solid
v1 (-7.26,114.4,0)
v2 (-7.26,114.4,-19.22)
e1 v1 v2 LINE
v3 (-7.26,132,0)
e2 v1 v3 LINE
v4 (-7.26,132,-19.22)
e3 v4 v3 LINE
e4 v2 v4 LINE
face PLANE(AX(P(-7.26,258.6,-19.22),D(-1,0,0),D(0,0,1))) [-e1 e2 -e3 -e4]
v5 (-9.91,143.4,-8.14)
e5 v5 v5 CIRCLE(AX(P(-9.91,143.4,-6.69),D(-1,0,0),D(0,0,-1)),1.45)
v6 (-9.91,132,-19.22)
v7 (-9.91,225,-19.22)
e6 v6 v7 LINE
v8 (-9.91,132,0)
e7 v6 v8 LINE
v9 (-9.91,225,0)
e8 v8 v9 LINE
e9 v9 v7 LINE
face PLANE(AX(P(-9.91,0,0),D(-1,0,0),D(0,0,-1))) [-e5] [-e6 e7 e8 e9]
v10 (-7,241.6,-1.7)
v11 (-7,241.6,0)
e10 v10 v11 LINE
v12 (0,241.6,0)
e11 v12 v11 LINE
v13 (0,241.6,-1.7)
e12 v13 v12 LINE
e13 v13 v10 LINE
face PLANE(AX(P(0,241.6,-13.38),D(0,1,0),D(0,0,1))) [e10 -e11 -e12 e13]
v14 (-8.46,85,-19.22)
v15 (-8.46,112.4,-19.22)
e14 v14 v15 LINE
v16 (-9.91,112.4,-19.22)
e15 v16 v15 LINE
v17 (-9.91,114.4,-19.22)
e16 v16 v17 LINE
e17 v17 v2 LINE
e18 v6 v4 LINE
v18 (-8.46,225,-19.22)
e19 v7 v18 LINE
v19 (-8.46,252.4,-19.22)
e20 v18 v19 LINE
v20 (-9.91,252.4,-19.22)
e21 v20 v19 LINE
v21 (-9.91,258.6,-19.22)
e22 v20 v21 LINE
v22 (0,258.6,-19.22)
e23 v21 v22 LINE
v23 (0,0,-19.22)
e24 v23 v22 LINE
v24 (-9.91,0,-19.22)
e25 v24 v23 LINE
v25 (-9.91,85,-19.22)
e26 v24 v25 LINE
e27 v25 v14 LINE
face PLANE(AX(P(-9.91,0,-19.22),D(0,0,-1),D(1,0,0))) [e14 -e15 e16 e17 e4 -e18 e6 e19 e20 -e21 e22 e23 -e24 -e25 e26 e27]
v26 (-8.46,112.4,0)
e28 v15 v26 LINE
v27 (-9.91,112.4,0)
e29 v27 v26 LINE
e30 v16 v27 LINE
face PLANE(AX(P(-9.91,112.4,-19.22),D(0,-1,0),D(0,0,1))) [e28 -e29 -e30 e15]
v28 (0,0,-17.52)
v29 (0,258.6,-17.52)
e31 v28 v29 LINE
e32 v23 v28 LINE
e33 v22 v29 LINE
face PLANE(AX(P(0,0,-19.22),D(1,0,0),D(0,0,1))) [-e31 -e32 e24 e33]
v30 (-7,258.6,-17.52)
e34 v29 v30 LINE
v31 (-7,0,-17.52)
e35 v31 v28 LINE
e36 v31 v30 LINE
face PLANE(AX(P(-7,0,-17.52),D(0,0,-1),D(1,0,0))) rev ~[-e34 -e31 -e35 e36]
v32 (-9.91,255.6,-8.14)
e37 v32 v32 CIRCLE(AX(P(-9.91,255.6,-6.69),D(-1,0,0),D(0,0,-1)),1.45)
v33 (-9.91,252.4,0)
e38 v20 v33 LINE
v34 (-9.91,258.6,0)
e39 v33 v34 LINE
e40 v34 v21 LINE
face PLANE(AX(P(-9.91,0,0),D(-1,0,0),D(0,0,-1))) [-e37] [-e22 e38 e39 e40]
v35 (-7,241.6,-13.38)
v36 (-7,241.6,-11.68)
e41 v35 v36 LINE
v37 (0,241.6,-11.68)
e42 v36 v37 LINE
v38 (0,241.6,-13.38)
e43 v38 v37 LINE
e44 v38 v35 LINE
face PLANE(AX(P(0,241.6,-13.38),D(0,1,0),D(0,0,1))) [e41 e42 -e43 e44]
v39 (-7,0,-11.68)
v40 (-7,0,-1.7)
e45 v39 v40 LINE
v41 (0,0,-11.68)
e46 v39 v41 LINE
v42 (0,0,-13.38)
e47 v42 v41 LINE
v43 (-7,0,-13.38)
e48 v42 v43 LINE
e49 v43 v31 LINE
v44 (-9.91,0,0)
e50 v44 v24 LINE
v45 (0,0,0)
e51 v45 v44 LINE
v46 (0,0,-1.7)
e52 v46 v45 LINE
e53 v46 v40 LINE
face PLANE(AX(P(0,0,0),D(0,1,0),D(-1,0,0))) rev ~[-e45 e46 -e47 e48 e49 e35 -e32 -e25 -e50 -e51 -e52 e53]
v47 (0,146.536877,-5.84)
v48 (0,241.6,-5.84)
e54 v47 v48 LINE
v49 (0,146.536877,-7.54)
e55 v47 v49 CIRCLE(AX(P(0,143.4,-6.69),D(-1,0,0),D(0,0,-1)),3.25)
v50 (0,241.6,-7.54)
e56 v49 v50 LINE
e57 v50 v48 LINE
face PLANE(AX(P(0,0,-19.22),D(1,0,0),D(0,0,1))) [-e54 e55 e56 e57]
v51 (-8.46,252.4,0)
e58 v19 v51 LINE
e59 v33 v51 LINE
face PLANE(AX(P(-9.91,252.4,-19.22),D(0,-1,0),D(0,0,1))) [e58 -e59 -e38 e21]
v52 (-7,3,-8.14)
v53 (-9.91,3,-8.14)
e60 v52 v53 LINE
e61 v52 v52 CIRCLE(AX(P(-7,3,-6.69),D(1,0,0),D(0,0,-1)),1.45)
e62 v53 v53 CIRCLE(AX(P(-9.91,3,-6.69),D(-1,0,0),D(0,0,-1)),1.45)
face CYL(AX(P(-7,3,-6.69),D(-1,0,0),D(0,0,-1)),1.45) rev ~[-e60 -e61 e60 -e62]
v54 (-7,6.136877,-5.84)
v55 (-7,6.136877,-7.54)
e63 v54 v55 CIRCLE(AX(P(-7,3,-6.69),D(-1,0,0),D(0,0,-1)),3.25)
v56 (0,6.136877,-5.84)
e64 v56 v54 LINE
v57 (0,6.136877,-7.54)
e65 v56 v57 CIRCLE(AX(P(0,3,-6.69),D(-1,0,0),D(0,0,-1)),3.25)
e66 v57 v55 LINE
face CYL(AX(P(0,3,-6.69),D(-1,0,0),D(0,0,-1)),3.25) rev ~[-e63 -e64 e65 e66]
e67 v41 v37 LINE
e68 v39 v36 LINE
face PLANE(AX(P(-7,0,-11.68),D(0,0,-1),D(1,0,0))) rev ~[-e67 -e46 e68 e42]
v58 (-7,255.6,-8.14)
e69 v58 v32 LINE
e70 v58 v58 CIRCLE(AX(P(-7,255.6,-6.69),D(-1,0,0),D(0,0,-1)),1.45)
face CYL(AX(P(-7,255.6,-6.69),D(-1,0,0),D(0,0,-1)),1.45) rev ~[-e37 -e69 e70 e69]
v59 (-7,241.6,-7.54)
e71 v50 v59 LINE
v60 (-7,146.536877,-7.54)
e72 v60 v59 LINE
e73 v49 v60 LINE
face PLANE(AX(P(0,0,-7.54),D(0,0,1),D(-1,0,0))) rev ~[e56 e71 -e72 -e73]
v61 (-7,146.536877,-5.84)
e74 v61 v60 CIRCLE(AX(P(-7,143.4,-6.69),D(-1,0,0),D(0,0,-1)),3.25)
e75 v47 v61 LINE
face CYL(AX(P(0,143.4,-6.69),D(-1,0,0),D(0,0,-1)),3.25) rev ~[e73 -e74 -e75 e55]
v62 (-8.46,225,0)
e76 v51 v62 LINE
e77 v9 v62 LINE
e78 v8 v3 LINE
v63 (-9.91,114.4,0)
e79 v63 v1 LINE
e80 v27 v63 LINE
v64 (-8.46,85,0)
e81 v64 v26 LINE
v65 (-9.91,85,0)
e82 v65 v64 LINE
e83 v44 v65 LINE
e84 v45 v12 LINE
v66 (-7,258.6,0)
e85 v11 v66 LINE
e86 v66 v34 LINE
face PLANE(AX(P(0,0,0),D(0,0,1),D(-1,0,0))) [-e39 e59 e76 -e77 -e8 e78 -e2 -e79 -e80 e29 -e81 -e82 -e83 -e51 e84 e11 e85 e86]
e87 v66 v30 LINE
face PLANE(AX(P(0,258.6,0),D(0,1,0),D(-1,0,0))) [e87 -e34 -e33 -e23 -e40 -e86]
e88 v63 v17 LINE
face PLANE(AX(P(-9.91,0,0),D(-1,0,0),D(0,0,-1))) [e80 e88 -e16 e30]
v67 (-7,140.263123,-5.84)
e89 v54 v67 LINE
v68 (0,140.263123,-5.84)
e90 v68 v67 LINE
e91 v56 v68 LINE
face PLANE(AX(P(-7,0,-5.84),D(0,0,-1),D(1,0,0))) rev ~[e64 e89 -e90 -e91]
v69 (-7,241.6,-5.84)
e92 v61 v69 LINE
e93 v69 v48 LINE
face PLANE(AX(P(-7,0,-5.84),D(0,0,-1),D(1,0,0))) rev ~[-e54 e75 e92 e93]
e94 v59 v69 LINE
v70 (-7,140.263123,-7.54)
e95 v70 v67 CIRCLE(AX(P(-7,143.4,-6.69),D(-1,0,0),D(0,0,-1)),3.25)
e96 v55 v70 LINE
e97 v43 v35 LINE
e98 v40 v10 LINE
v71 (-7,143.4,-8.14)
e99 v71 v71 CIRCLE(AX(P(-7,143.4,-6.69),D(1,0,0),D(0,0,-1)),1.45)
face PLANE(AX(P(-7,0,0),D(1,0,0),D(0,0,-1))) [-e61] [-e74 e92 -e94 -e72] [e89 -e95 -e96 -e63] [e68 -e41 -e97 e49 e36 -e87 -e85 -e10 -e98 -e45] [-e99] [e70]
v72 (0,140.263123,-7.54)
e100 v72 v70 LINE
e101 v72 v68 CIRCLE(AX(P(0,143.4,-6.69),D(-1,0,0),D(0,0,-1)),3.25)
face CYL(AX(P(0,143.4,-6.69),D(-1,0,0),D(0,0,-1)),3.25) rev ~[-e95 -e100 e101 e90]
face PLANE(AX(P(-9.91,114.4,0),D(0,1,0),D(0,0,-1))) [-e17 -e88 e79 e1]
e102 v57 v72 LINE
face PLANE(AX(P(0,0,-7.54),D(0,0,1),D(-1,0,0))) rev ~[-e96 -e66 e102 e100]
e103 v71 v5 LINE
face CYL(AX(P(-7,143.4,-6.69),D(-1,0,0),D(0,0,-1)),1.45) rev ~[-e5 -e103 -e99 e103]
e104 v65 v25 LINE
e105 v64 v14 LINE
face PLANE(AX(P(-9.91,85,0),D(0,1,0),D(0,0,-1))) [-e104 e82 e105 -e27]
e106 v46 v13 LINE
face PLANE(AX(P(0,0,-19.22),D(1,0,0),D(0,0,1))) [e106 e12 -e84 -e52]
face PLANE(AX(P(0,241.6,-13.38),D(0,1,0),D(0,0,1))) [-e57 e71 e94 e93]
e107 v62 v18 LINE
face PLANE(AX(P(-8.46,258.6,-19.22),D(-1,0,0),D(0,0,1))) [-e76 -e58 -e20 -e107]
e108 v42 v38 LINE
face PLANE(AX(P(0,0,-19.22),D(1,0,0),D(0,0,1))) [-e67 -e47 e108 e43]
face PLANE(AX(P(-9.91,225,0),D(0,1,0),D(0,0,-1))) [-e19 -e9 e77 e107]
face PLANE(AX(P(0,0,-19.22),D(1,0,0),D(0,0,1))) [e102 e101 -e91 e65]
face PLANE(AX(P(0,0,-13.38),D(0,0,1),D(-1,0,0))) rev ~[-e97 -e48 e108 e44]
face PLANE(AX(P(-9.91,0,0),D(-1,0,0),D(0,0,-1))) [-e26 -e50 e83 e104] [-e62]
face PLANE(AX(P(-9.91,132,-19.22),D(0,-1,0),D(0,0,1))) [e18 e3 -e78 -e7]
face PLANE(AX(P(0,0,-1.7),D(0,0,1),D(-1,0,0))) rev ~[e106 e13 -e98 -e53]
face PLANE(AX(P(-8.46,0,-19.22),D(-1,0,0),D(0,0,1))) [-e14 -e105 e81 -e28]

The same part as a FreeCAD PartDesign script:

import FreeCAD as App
import Part
import Sketcher

V = App.Vector
Q = App.Units.Quantity


def add_polygon(sketch, points):
    """Adds a closed chain of lines whose ends are joined by coincident constraints."""
    first, n = sketch.GeometryCount, len(points)
    for a, b in zip(points, points[1:] + points[:1]):
        sketch.addGeometry(Part.LineSegment(App.Vector(*a, 0), App.Vector(*b, 0)), False)
    for i in range(n):
        sketch.addConstraint(Sketcher.Constraint("Coincident", first + i, 2, first + (i + 1) % n, 1))

doc = App.newDocument("Part")
params = doc.addObject("Spreadsheet::Sheet", "Params")
for row, (alias, value) in enumerate([
    ("sketch1_width", "9.91 mm"),
    ("sketch1_height", "19.22 mm"),
    ("pad1_length", "258.6 mm"),
    ("sketch2_width", "7 mm"),
    ("sketch2_height", "4.14 mm"),
    ("sketch3_height", "4.14 mm"),
    ("sketch3_width", "7 mm"),
    ("sketch4_height", "4.14 mm"),
    ("sketch4_width", "7 mm"),
    ("sketch5_diameter", "2.9 mm"),
    ("hole_diameter", "2.9 mm"),
    ("hole_cbore_diameter", "6.5 mm"),
    ("hole_cbore_depth", "7 mm"),
    ("sketch6_diameter", "2.9 mm"),
    ("hole2_diameter", "2.9 mm"),
    ("hole2_cbore_diameter", "6.5 mm"),
    ("hole2_cbore_depth", "7 mm"),
    ("sketch7_width", "17 mm"),
    ("sketch7_height", "13.38 mm"),
    ("pocket4_length", "7 mm"),
    ("sketch8_diameter", "2.9 mm"),
    ("hole3_diameter", "2.9 mm"),
    ("sketch9_height", "19.22 mm"),
    ("pocket5_length", "1.45 mm"),
    ("sketch10_height", "19.22 mm"),
    ("pocket6_length", "2.65 mm"),
    ("sketch11_height", "19.22 mm"),
    ("pocket7_length", "1.45 mm"),
], start=1):
    params.set(f"A{row}", alias)
    params.set(f"B{row}", "=" + value)
    params.setAlias(f"B{row}", alias)

body = doc.addObject("PartDesign::Body", "Body")

# Sketch on XZ plane
sketch1 = body.newObject("Sketcher::SketchObject", "Sketch")
sketch1.AttachmentSupport = (doc.getObject("XZ_Plane"), [""])
sketch1.MapMode = "FlatFace"
add_polygon(sketch1, [(-9.91, 0), (0, 0), (0, -19.22), (-9.91, -19.22)])  # lines 0-3
sketch1.addConstraint([
    Sketcher.Constraint("Horizontal", 0),
    Sketcher.Constraint("Vertical", 1),
    Sketcher.Constraint("Horizontal", 2),
    Sketcher.Constraint("Vertical", 3),
    Sketcher.Constraint("Coincident", 0, 2, -1, 1),
    Sketcher.Constraint("DistanceX", 0, 1, 0, 2, Q("9.91 mm")),
    Sketcher.Constraint("DistanceY", 1, 2, 1, 1, Q("19.22 mm")),
])
sketch1.setExpression("Constraints[9]", "Params.sketch1_width")
sketch1.setExpression("Constraints[10]", "Params.sketch1_height")
pad1 = body.newObject("PartDesign::Pad", "Pad")
pad1.Profile = sketch1
pad1.setExpression("Length", "Params.pad1_length")
pad1.Reversed = True

# Sketch on XZ plane
sketch2 = body.newObject("Sketcher::SketchObject", "Sketch001")
sketch2.AttachmentSupport = (doc.getObject("XZ_Plane"), [""])
sketch2.MapMode = "FlatFace"
add_polygon(sketch2, [(0, -5.84), (0, -1.7), (-7, -1.7), (-7, -5.84)])  # lines 0-3
sketch2.addConstraint([
    Sketcher.Constraint("Vertical", 0),
    Sketcher.Constraint("Horizontal", 1),
    Sketcher.Constraint("Vertical", 2),
    Sketcher.Constraint("Horizontal", 3),
    Sketcher.Constraint("PointOnObject", 0, 2, -2),
    Sketcher.Constraint("DistanceX", 1, 2, 1, 1, Q("7 mm")),
    Sketcher.Constraint("DistanceY", 0, 1, 0, 2, Q("4.14 mm")),
    Sketcher.Constraint("DistanceY", 0, 2, -1, 1, Q("1.7 mm")),
])
sketch2.setExpression("Constraints[9]", "Params.sketch2_width")
sketch2.setExpression("Constraints[10]", "Params.sketch2_height")
pocket1 = body.newObject("PartDesign::Pocket", "Pocket")
pocket1.Profile = sketch2
pocket1.Type = "ThroughAll"

# Sketch on XZ plane
sketch3 = body.newObject("Sketcher::SketchObject", "Sketch002")
sketch3.AttachmentSupport = (doc.getObject("XZ_Plane"), [""])
sketch3.MapMode = "FlatFace"
add_polygon(sketch3, [(0, -11.68), (0, -7.54), (-7, -7.54), (-7, -11.68)])  # lines 0-3
sketch3.addConstraint([
    Sketcher.Constraint("Vertical", 0),
    Sketcher.Constraint("Horizontal", 1),
    Sketcher.Constraint("Vertical", 2),
    Sketcher.Constraint("Horizontal", 3),
    Sketcher.Constraint("PointOnObject", 0, 2, -2),
    Sketcher.Constraint("DistanceY", 0, 1, 0, 2, Q("4.14 mm")),
    Sketcher.Constraint("DistanceX", 1, 2, 1, 1, Q("7 mm")),
    Sketcher.Constraint("DistanceY", 0, 2, -1, 1, Q("7.54 mm")),
])
sketch3.setExpression("Constraints[9]", "Params.sketch3_height")
sketch3.setExpression("Constraints[10]", "Params.sketch3_width")
pocket2 = body.newObject("PartDesign::Pocket", "Pocket001")
pocket2.Profile = sketch3
pocket2.Type = "ThroughAll"

# Sketch on XZ plane
sketch4 = body.newObject("Sketcher::SketchObject", "Sketch003")
sketch4.AttachmentSupport = (doc.getObject("XZ_Plane"), [""])
sketch4.MapMode = "FlatFace"
add_polygon(sketch4, [(0, -17.52), (0, -13.38), (-7, -13.38), (-7, -17.52)])  # lines 0-3
sketch4.addConstraint([
    Sketcher.Constraint("Vertical", 0),
    Sketcher.Constraint("Horizontal", 1),
    Sketcher.Constraint("Vertical", 2),
    Sketcher.Constraint("Horizontal", 3),
    Sketcher.Constraint("PointOnObject", 0, 2, -2),
    Sketcher.Constraint("DistanceY", 0, 1, 0, 2, Q("4.14 mm")),
    Sketcher.Constraint("DistanceX", 1, 2, 1, 1, Q("7 mm")),
    Sketcher.Constraint("DistanceY", 0, 2, -1, 1, Q("13.38 mm")),
])
sketch4.setExpression("Constraints[9]", "Params.sketch4_height")
sketch4.setExpression("Constraints[10]", "Params.sketch4_width")
pocket3 = body.newObject("PartDesign::Pocket", "Pocket002")
pocket3.Profile = sketch4
pocket3.Type = "ThroughAll"

# Sketch on YZ plane
sketch5 = body.newObject("Sketcher::SketchObject", "Sketch004")
sketch5.AttachmentSupport = (doc.getObject("YZ_Plane"), [""])
sketch5.MapMode = "FlatFace"
sketch5.addGeometry(Part.Circle(V(3, -6.69, 0), V(0, 0, 1), 1.45), False)
sketch5.addConstraint([
    Sketcher.Constraint("Diameter", 0, Q("2.9 mm")),
    Sketcher.Constraint("DistanceX", -1, 1, 0, 3, Q("3 mm")),
    Sketcher.Constraint("DistanceY", 0, 3, -1, 1, Q("6.69 mm")),
])
sketch5.setExpression("Constraints[0]", "Params.sketch5_diameter")
doc.recompute()
hole = body.newObject("PartDesign::Hole", "Hole")
hole.Profile = sketch5
hole.ThreadType = "None"
hole.setExpression("Diameter", "Params.hole_diameter")
hole.DepthType = "ThroughAll"
hole.HoleCutType = "Counterbore"
hole.setExpression("HoleCutDiameter", "Params.hole_cbore_diameter")
hole.setExpression("HoleCutDepth", "Params.hole_cbore_depth")

# Sketch on YZ plane
sketch6 = body.newObject("Sketcher::SketchObject", "Sketch005")
sketch6.AttachmentSupport = (doc.getObject("YZ_Plane"), [""])
sketch6.MapMode = "FlatFace"
sketch6.addGeometry(Part.Circle(V(143.4, -6.69, 0), V(0, 0, 1), 1.45), False)
sketch6.addConstraint([
    Sketcher.Constraint("Diameter", 0, Q("2.9 mm")),
    Sketcher.Constraint("DistanceX", -1, 1, 0, 3, Q("143.4 mm")),
    Sketcher.Constraint("DistanceY", 0, 3, -1, 1, Q("6.69 mm")),
])
sketch6.setExpression("Constraints[0]", "Params.sketch6_diameter")
doc.recompute()
hole2 = body.newObject("PartDesign::Hole", "Hole001")
hole2.Profile = sketch6
hole2.ThreadType = "None"
hole2.setExpression("Diameter", "Params.hole2_diameter")
hole2.DepthType = "ThroughAll"
hole2.HoleCutType = "Counterbore"
hole2.setExpression("HoleCutDiameter", "Params.hole2_cbore_diameter")
hole2.setExpression("HoleCutDepth", "Params.hole2_cbore_depth")

# Sketch on YZ plane
sketch7 = body.newObject("Sketcher::SketchObject", "Sketch006")
sketch7.AttachmentSupport = (doc.getObject("YZ_Plane"), [""])
sketch7.MapMode = "FlatFace"
add_polygon(sketch7, [(258.6, 0), (241.6, 0), (241.6, -13.38), (258.6, -13.38)])  # lines 0-3
sketch7.addConstraint([
    Sketcher.Constraint("Horizontal", 0),
    Sketcher.Constraint("Vertical", 1),
    Sketcher.Constraint("Horizontal", 2),
    Sketcher.Constraint("Vertical", 3),
    Sketcher.Constraint("PointOnObject", 0, 2, -1),
    Sketcher.Constraint("DistanceX", 0, 2, 0, 1, Q("17 mm")),
    Sketcher.Constraint("DistanceY", 1, 2, 1, 1, Q("13.38 mm")),
    Sketcher.Constraint("DistanceX", -1, 1, 0, 2, Q("241.6 mm")),
])
sketch7.setExpression("Constraints[9]", "Params.sketch7_width")
sketch7.setExpression("Constraints[10]", "Params.sketch7_height")
pocket4 = body.newObject("PartDesign::Pocket", "Pocket003")
pocket4.Profile = sketch7
pocket4.setExpression("Length", "Params.pocket4_length")

# Sketch on YZ plane
sketch8 = body.newObject("Sketcher::SketchObject", "Sketch007")
sketch8.AttachmentSupport = (doc.getObject("YZ_Plane"), [""])
sketch8.MapMode = "FlatFace"
sketch8.AttachmentOffset = App.Placement(V(0, 0, -7), App.Rotation())
sketch8.addGeometry(Part.Circle(V(255.6, -6.69, 0), V(0, 0, 1), 1.45), False)
sketch8.addConstraint([
    Sketcher.Constraint("Diameter", 0, Q("2.9 mm")),
    Sketcher.Constraint("DistanceX", -1, 1, 0, 3, Q("255.6 mm")),
    Sketcher.Constraint("DistanceY", 0, 3, -1, 1, Q("6.69 mm")),
])
sketch8.setExpression("Constraints[0]", "Params.sketch8_diameter")
doc.recompute()
hole3 = body.newObject("PartDesign::Hole", "Hole002")
hole3.Profile = sketch8
hole3.ThreadType = "None"
hole3.setExpression("Diameter", "Params.hole3_diameter")
hole3.DepthType = "ThroughAll"

# Sketch on YZ plane
sketch9 = body.newObject("Sketcher::SketchObject", "Sketch008")
sketch9.AttachmentSupport = (doc.getObject("YZ_Plane"), [""])
sketch9.MapMode = "FlatFace"
sketch9.AttachmentOffset = App.Placement(V(0, 0, -9.91), App.Rotation())
add_polygon(sketch9, [(112.4, -19.22), (85, -19.22), (85, 0), (112.4, 0)])  # lines 0-3
sketch9.addConstraint([
    Sketcher.Constraint("Horizontal", 0),
    Sketcher.Constraint("Vertical", 1),
    Sketcher.Constraint("Horizontal", 2),
    Sketcher.Constraint("Vertical", 3),
    Sketcher.Constraint("PointOnObject", 1, 2, -1),
    Sketcher.Constraint("DistanceX", -1, 1, 0, 2, Q("85 mm")),
    Sketcher.Constraint("DistanceX", -1, 1, 2, 2, Q("112.4 mm")),
    Sketcher.Constraint("DistanceY", 1, 1, 1, 2, Q("19.22 mm")),
])
sketch9.setExpression("Constraints[11]", "Params.sketch9_height")
pocket5 = body.newObject("PartDesign::Pocket", "Pocket004")
pocket5.Profile = sketch9
pocket5.setExpression("Length", "Params.pocket5_length")
pocket5.Reversed = True

# Sketch on YZ plane
sketch10 = body.newObject("Sketcher::SketchObject", "Sketch009")
sketch10.AttachmentSupport = (doc.getObject("YZ_Plane"), [""])
sketch10.MapMode = "FlatFace"
sketch10.AttachmentOffset = App.Placement(V(0, 0, -9.91), App.Rotation())
add_polygon(sketch10, [(132, -19.22), (114.4, -19.22), (114.4, 0), (132, 0)])  # lines 0-3
sketch10.addConstraint([
    Sketcher.Constraint("Horizontal", 0),
    Sketcher.Constraint("Vertical", 1),
    Sketcher.Constraint("Horizontal", 2),
    Sketcher.Constraint("Vertical", 3),
    Sketcher.Constraint("PointOnObject", 1, 2, -1),
    Sketcher.Constraint("DistanceX", -1, 1, 2, 2, Q("132 mm")),
    Sketcher.Constraint("DistanceX", -1, 1, 0, 2, Q("114.4 mm")),
    Sketcher.Constraint("DistanceY", 1, 1, 1, 2, Q("19.22 mm")),
])
sketch10.setExpression("Constraints[11]", "Params.sketch10_height")
pocket6 = body.newObject("PartDesign::Pocket", "Pocket005")
pocket6.Profile = sketch10
pocket6.setExpression("Length", "Params.pocket6_length")
pocket6.Reversed = True

# Sketch on YZ plane
sketch11 = body.newObject("Sketcher::SketchObject", "Sketch010")
sketch11.AttachmentSupport = (doc.getObject("YZ_Plane"), [""])
sketch11.MapMode = "FlatFace"
sketch11.AttachmentOffset = App.Placement(V(0, 0, -9.91), App.Rotation())
add_polygon(sketch11, [(252.4, -19.22), (225, -19.22), (225, 0), (252.4, 0)])  # lines 0-3
sketch11.addConstraint([
    Sketcher.Constraint("Horizontal", 0),
    Sketcher.Constraint("Vertical", 1),
    Sketcher.Constraint("Horizontal", 2),
    Sketcher.Constraint("Vertical", 3),
    Sketcher.Constraint("PointOnObject", 1, 2, -1),
    Sketcher.Constraint("DistanceX", -1, 1, 0, 2, Q("225 mm")),
    Sketcher.Constraint("DistanceX", -1, 1, 2, 2, Q("252.4 mm")),
    Sketcher.Constraint("DistanceY", 1, 1, 1, 2, Q("19.22 mm")),
])
sketch11.setExpression("Constraints[11]", "Params.sketch11_height")
pocket7 = body.newObject("PartDesign::Pocket", "Pocket006")
pocket7.Profile = sketch11
pocket7.setExpression("Length", "Params.pocket7_length")
pocket7.Reversed = True

doc.recompute()
